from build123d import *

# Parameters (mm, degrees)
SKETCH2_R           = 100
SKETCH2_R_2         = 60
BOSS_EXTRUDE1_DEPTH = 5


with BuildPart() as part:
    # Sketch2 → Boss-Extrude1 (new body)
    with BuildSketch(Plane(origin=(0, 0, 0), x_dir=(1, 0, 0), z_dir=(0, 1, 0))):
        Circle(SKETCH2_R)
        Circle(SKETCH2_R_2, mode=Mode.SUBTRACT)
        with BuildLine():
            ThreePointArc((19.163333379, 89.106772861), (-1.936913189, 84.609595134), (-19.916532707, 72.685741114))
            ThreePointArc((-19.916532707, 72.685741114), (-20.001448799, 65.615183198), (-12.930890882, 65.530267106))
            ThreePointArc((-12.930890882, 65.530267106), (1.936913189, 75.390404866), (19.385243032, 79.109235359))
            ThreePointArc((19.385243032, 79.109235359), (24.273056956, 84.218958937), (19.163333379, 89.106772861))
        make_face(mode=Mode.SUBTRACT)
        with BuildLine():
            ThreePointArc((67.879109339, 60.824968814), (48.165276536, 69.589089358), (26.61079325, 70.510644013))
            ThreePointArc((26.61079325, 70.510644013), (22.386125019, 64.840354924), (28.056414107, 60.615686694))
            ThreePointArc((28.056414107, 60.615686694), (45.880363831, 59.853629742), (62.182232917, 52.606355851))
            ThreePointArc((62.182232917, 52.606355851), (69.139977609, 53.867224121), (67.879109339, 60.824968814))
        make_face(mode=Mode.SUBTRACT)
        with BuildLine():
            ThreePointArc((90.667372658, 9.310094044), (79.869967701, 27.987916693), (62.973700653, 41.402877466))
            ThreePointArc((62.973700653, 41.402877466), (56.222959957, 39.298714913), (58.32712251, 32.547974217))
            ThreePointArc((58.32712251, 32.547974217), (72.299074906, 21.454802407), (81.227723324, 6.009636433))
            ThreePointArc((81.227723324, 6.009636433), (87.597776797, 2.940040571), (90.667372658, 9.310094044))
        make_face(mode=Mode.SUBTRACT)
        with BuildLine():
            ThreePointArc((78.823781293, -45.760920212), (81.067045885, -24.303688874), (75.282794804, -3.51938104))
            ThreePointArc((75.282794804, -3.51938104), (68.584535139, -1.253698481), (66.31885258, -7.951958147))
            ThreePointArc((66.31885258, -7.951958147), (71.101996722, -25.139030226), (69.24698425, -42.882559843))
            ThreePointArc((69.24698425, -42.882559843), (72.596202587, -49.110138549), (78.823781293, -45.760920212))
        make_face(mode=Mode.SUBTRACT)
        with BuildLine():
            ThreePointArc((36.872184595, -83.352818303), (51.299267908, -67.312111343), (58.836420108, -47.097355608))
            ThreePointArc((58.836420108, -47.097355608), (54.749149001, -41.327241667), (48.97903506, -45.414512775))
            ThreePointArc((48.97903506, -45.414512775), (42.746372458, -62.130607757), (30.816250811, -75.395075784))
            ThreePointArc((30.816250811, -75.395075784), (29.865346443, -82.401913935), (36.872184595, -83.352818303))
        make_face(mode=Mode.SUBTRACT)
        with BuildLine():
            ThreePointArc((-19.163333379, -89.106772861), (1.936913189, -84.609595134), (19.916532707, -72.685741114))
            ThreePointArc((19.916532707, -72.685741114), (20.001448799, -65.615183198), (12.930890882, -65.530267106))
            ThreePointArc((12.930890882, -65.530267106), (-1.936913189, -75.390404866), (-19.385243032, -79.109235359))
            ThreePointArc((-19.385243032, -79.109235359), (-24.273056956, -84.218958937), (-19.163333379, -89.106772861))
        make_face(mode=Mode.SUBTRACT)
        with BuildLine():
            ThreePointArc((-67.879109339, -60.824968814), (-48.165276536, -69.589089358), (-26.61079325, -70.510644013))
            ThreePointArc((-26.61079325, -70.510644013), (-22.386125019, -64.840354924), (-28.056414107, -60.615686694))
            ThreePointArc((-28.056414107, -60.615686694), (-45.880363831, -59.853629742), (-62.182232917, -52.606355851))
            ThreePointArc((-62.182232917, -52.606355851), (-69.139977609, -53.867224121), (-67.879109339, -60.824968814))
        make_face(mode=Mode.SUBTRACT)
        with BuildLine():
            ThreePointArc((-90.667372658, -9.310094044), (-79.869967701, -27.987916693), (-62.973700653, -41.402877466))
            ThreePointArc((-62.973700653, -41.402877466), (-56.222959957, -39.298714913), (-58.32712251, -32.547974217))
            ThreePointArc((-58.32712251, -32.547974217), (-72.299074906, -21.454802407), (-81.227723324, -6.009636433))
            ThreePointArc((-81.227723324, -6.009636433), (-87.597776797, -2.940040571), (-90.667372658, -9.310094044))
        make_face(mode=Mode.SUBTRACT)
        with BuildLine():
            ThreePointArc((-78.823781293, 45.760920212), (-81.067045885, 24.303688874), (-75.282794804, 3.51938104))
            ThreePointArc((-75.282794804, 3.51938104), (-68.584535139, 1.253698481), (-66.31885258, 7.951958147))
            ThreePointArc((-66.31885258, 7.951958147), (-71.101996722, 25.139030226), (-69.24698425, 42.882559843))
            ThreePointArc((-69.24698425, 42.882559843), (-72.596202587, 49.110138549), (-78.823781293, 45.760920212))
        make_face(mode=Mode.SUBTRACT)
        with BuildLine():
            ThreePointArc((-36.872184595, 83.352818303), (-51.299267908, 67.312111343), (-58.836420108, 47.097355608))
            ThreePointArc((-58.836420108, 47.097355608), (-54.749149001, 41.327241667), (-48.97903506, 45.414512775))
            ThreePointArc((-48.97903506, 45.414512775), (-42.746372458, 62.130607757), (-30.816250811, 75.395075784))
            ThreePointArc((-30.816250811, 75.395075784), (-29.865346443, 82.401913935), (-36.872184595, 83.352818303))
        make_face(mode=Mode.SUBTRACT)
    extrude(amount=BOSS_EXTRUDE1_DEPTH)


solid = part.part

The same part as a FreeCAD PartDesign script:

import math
import FreeCAD as App
import Part
import Sketcher
from FreeCAD import Vector

doc = App.newDocument("Part")
body = doc.addObject("PartDesign::Body", "Body")

sketch1 = body.newObject("Sketcher::SketchObject", "Sketch")
sketch1.AttachmentSupport = (doc.getObject("XZ_Plane"), [""])
sketch1.MapMode = "FlatFace"
sketch1.addGeometry([
    Part.Circle(Vector(0, 0, 0), Vector(0, 0, 1), 100),
    Part.ArcOfCircle(Part.Circle(Vector(-35, 13, 0), Vector(0, 0, 1), 58), math.radians(82), math.radians(125)),
    Part.ArcOfCircle(Part.Circle(Vector(-65, 57, 0), Vector(0, 0, 1), 5), math.radians(125), math.radians(305)),
    Part.ArcOfCircle(Part.Circle(Vector(-35, 13, 0), Vector(0, 0, 1), 48), math.radians(82), math.radians(125)),
    Part.ArcOfCircle(Part.Circle(Vector(-27, 66, 0), Vector(0, 0, 1), 5), math.radians(-98), math.radians(82)),
    Part.ArcOfCircle(Part.Circle(Vector(-20, 31, 0), Vector(0, 0, 1), 58), math.radians(46), math.radians(89)),
    Part.ArcOfCircle(Part.Circle(Vector(-19, 84, 0), Vector(0, 0, 1), 5), math.radians(89), math.radians(269)),
    Part.ArcOfCircle(Part.Circle(Vector(-20, 31, 0), Vector(0, 0, 1), 48), math.radians(46), math.radians(89)),
    Part.ArcOfCircle(Part.Circle(Vector(16, 69, 0), Vector(0, 0, 1), 5), math.radians(-134), math.radians(46)),
    Part.ArcOfCircle(Part.Circle(Vector(-36, -10, 0), Vector(0, 0, 1), 58), math.radians(118), math.radians(161)),
    Part.ArcOfCircle(Part.Circle(Vector(-86, 8, 0), Vector(0, 0, 1), 5), math.radians(161), math.radians(341)),
    Part.ArcOfCircle(Part.Circle(Vector(-36, -10, 0), Vector(0, 0, 1), 48), math.radians(118), math.radians(161)),
    Part.ArcOfCircle(Part.Circle(Vector(-61, 37, 0), Vector(0, 0, 1), 5), math.radians(-62), math.radians(118)),
    Part.ArcOfCircle(Part.Circle(Vector(2, 37, 0), Vector(0, 0, 1), 58), math.radians(10), math.radians(53)),
    Part.ArcOfCircle(Part.Circle(Vector(34, 79, 0), Vector(0, 0, 1), 5), math.radians(53), math.radians(233)),
    Part.ArcOfCircle(Part.Circle(Vector(2, 37, 0), Vector(0, 0, 1), 48), math.radians(10), math.radians(53)),
    Part.ArcOfCircle(Part.Circle(Vector(54, 46, 0), Vector(0, 0, 1), 5), math.radians(-170), math.radians(10)),
    Part.Circle(Vector(0, 0, 0), Vector(0, 0, 1), 60),
    Part.ArcOfCircle(Part.Circle(Vector(23, 29, 0), Vector(0, 0, 1), 58), math.radians(-26), math.radians(17)),
    Part.ArcOfCircle(Part.Circle(Vector(74, 44, 0), Vector(0, 0, 1), 5), math.radians(17), math.radians(197)),
    Part.ArcOfCircle(Part.Circle(Vector(23, 29, 0), Vector(0, 0, 1), 48), math.radians(-26), math.radians(17)),
    Part.ArcOfCircle(Part.Circle(Vector(71, 6, 0), Vector(0, 0, 1), 5), math.radians(154), math.radians(334)),
    Part.ArcOfCircle(Part.Circle(Vector(-23, -29, 0), Vector(0, 0, 1), 58), math.radians(154), math.radians(197)),
    Part.ArcOfCircle(Part.Circle(Vector(-74, -44, 0), Vector(0, 0, 1), 5), math.radians(-163), math.radians(17)),
    Part.ArcOfCircle(Part.Circle(Vector(-23, -29, 0), Vector(0, 0, 1), 48), math.radians(154), math.radians(197)),
    Part.ArcOfCircle(Part.Circle(Vector(-71, -6, 0), Vector(0, 0, 1), 5), math.radians(-26), math.radians(154)),
    Part.ArcOfCircle(Part.Circle(Vector(-2, -37, 0), Vector(0, 0, 1), 58), math.radians(-170), math.radians(-127)),
    Part.ArcOfCircle(Part.Circle(Vector(-34, -79, 0), Vector(0, 0, 1), 5), math.radians(-127), math.radians(53)),
    Part.ArcOfCircle(Part.Circle(Vector(-2, -37, 0), Vector(0, 0, 1), 48), math.radians(-170), math.radians(-127)),
    Part.ArcOfCircle(Part.Circle(Vector(-54, -46, 0), Vector(0, 0, 1), 5), math.radians(10), math.radians(190)),
    Part.ArcOfCircle(Part.Circle(Vector(36, 10, 0), Vector(0, 0, 1), 58), math.radians(-62), math.radians(-19)),
    Part.ArcOfCircle(Part.Circle(Vector(86, -8, 0), Vector(0, 0, 1), 5), math.radians(-19), math.radians(161)),
    Part.ArcOfCircle(Part.Circle(Vector(36, 10, 0), Vector(0, 0, 1), 48), math.radians(-62), math.radians(-19)),
    Part.ArcOfCircle(Part.Circle(Vector(61, -37, 0), Vector(0, 0, 1), 5), math.radians(118), math.radians(298)),
    Part.ArcOfCircle(Part.Circle(Vector(20, -31, 0), Vector(0, 0, 1), 58), math.radians(-134), math.radians(-91)),
    Part.ArcOfCircle(Part.Circle(Vector(19, -84, 0), Vector(0, 0, 1), 5), math.radians(-91), math.radians(89)),
    Part.ArcOfCircle(Part.Circle(Vector(20, -31, 0), Vector(0, 0, 1), 48), math.radians(-134), math.radians(-91)),
    Part.ArcOfCircle(Part.Circle(Vector(-16, -69, 0), Vector(0, 0, 1), 5), math.radians(46), math.radians(226)),
    Part.ArcOfCircle(Part.Circle(Vector(35, -13, 0), Vector(0, 0, 1), 58), math.radians(-98), math.radians(-55)),
    Part.ArcOfCircle(Part.Circle(Vector(65, -57, 0), Vector(0, 0, 1), 5), math.radians(-55), math.radians(125)),
    Part.ArcOfCircle(Part.Circle(Vector(35, -13, 0), Vector(0, 0, 1), 48), math.radians(-98), math.radians(-55)),
    Part.ArcOfCircle(Part.Circle(Vector(27, -66, 0), Vector(0, 0, 1), 5), math.radians(82), math.radians(262)),
], False)
sketch1.addConstraint([
    Sketcher.Constraint("Tangent", 1, 2, 2, 1),
    Sketcher.Constraint("Tangent", 2, 2, 3, 2),
    Sketcher.Constraint("Tangent", 3, 1, 4, 1),
    Sketcher.Constraint("Tangent", 4, 2, 1, 1),
    Sketcher.Constraint("Tangent", 5, 2, 6, 1),
    Sketcher.Constraint("Tangent", 6, 2, 7, 2),
    Sketcher.Constraint("Tangent", 7, 1, 8, 1),
    Sketcher.Constraint("Tangent", 8, 2, 5, 1),
    Sketcher.Constraint("Tangent", 9, 2, 10, 1),
    Sketcher.Constraint("Tangent", 10, 2, 11, 2),
    Sketcher.Constraint("Tangent", 11, 1, 12, 1),
    Sketcher.Constraint("Tangent", 12, 2, 9, 1),
    Sketcher.Constraint("Tangent", 13, 2, 14, 1),
    Sketcher.Constraint("Tangent", 14, 2, 15, 2),
    Sketcher.Constraint("Tangent", 15, 1, 16, 1),
    Sketcher.Constraint("Tangent", 16, 2, 13, 1),
    Sketcher.Constraint("Tangent", 18, 2, 19, 1),
    Sketcher.Constraint("Tangent", 19, 2, 20, 2),
    Sketcher.Constraint("Tangent", 20, 1, 21, 1),
    Sketcher.Constraint("Tangent", 21, 2, 18, 1),
    Sketcher.Constraint("Tangent", 22, 2, 23, 1),
    Sketcher.Constraint("Tangent", 23, 2, 24, 2),
    Sketcher.Constraint("Tangent", 24, 1, 25, 1),
    Sketcher.Constraint("Tangent", 25, 2, 22, 1),
    Sketcher.Constraint("Tangent", 26, 2, 27, 1),
    Sketcher.Constraint("Tangent", 27, 2, 28, 2),
    Sketcher.Constraint("Tangent", 28, 1, 29, 1),
    Sketcher.Constraint("Tangent", 29, 2, 26, 1),
    Sketcher.Constraint("Tangent", 30, 2, 31, 1),
    Sketcher.Constraint("Tangent", 31, 2, 32, 2),
    Sketcher.Constraint("Tangent", 32, 1, 33, 1),
    Sketcher.Constraint("Tangent", 33, 2, 30, 1),
    Sketcher.Constraint("Tangent", 34, 2, 35, 1),
    Sketcher.Constraint("Tangent", 35, 2, 36, 2),
    Sketcher.Constraint("Tangent", 36, 1, 37, 1),
    Sketcher.Constraint("Tangent", 37, 2, 34, 1),
    Sketcher.Constraint("Tangent", 38, 2, 39, 1),
    Sketcher.Constraint("Tangent", 39, 2, 40, 2),
    Sketcher.Constraint("Tangent", 40, 1, 41, 1),
    Sketcher.Constraint("Tangent", 41, 2, 38, 1),
    Sketcher.Constraint("Coincident", 0, 3, -1, 1),
    Sketcher.Constraint("Coincident", 17, 3, -1, 1),
    Sketcher.Constraint("Coincident", 3, 3, 1, 3),
    Sketcher.Constraint("Coincident", 7, 3, 5, 3),
    Sketcher.Constraint("Coincident", 11, 3, 9, 3),
    Sketcher.Constraint("Coincident", 15, 3, 13, 3),
    Sketcher.Constraint("Coincident", 20, 3, 18, 3),
    Sketcher.Constraint("Coincident", 24, 3, 22, 3),
    Sketcher.Constraint("Coincident", 28, 3, 26, 3),
    Sketcher.Constraint("Coincident", 32, 3, 30, 3),
    Sketcher.Constraint("Coincident", 36, 3, 34, 3),
    Sketcher.Constraint("Coincident", 40, 3, 38, 3),
    Sketcher.Constraint("Equal", 1, 5),
    Sketcher.Constraint("Equal", 4, 6),
    Sketcher.Constraint("Equal", 5, 9),
    Sketcher.Constraint("Equal", 8, 10),
    Sketcher.Constraint("Equal", 9, 13),
    Sketcher.Constraint("Equal", 12, 14),
    Sketcher.Constraint("Equal", 13, 18),
    Sketcher.Constraint("Equal", 16, 19),
    Sketcher.Constraint("Equal", 18, 22),
    Sketcher.Constraint("Equal", 21, 23),
    Sketcher.Constraint("Equal", 22, 26),
    Sketcher.Constraint("Equal", 25, 27),
    Sketcher.Constraint("Equal", 26, 30),
    Sketcher.Constraint("Equal", 29, 31),
    Sketcher.Constraint("Equal", 30, 34),
    Sketcher.Constraint("Equal", 33, 35),
    Sketcher.Constraint("Equal", 34, 38),
    Sketcher.Constraint("Equal", 37, 39),
    Sketcher.Constraint("Symmetric", 18, 3, 22, 3, -1, 1),
    Sketcher.Constraint("Symmetric", 13, 3, 26, 3, -1, 1),
    Sketcher.Constraint("Symmetric", 9, 3, 30, 3, -1, 1),
    Sketcher.Constraint("Symmetric", 5, 3, 34, 3, -1, 1),
    Sketcher.Constraint("Symmetric", 1, 3, 38, 3, -1, 1),
    Sketcher.Constraint("Diameter", 0, 200.0),
    Sketcher.Constraint("Diameter", 17, 120.0),
    Sketcher.Constraint("Radius", 2, 5.0),
    Sketcher.Constraint("Radius", 1, 57.778553),
    Sketcher.Constraint("DistanceX", 12, 2, -1, 1, 62.973701),
    Sketcher.Constraint("DistanceX", -1, 1, 33, 2, 62.973701),
    Sketcher.Constraint("DistanceX", 1, 3, -1, 1, 34.963381),
    Sketcher.Constraint("DistanceY", -1, 1, 1, 3, 13.339012),
    Sketcher.Constraint("DistanceX", 2, 3, -1, 1, 65.030671),
    Sketcher.Constraint("DistanceX", 6, 3, -1, 1, 19.274288),
    Sketcher.Constraint("DistanceX", -1, 1, 8, 3, 16.423712),
    Sketcher.Constraint("DistanceX", 12, 3, -1, 1, 60.650412),
    Sketcher.Constraint("DistanceY", -1, 1, 18, 3, 29.13017),
    Sketcher.Constraint("DistanceY", -1, 1, 19, 3, 44.32174),
    Sketcher.Constraint("DistanceY", -1, 1, 21, 3, 5.73567),
    Sketcher.Constraint("DistanceY", 23, 3, -1, 1, 44.32174),
    Sketcher.Constraint("DistanceY", 25, 3, -1, 1, 5.73567),
    Sketcher.Constraint("DistanceX", -1, 1, 35, 3, 19.274288),
    Sketcher.Constraint("DistanceX", 37, 3, -1, 1, 16.423712),
    Sketcher.Constraint("DistanceX", -1, 1, 39, 3, 65.030671),
    Sketcher.Constraint("DistanceY", -1, 1, 8, 2, 72.685741),
    Sketcher.Constraint("DistanceY", -1, 1, 13, 2, 83.352818),
    Sketcher.Constraint("DistanceX", -1, 1, 14, 2, 30.816251),
    Sketcher.Constraint("DistanceX", -1, 1, 16, 2, 58.83642),
    Sketcher.Constraint("DistanceX", -1, 1, 18, 2, 78.823781),
    Sketcher.Constraint("DistanceY", 26, 2, -1, 1, 83.352818),
    Sketcher.Constraint("DistanceX", 29, 2, -1, 1, 58.83642),
    Sketcher.Constraint("DistanceX", 4, 3, -1, 1, 27.333604),
    Sketcher.Constraint("DistanceX", 5, 3, -1, 1, 20.445495),
    Sketcher.Constraint("DistanceY", 9, 3, -1, 1, 9.759473),
    Sketcher.Constraint("DistanceX", 10, 3, -1, 1, 85.947548),
    Sketcher.Constraint("DistanceX", -1, 1, 13, 3, 1.881875),
    Sketcher.Constraint("DistanceX", -1, 1, 31, 3, 85.947548),
    Sketcher.Constraint("DistanceX", -1, 1, 41, 3, 27.333604),
])
pad1 = body.newObject("PartDesign::Pad", "Pad")
pad1.Profile = sketch1
pad1.Length = 5
pad1.Reversed = True

doc.recompute()
